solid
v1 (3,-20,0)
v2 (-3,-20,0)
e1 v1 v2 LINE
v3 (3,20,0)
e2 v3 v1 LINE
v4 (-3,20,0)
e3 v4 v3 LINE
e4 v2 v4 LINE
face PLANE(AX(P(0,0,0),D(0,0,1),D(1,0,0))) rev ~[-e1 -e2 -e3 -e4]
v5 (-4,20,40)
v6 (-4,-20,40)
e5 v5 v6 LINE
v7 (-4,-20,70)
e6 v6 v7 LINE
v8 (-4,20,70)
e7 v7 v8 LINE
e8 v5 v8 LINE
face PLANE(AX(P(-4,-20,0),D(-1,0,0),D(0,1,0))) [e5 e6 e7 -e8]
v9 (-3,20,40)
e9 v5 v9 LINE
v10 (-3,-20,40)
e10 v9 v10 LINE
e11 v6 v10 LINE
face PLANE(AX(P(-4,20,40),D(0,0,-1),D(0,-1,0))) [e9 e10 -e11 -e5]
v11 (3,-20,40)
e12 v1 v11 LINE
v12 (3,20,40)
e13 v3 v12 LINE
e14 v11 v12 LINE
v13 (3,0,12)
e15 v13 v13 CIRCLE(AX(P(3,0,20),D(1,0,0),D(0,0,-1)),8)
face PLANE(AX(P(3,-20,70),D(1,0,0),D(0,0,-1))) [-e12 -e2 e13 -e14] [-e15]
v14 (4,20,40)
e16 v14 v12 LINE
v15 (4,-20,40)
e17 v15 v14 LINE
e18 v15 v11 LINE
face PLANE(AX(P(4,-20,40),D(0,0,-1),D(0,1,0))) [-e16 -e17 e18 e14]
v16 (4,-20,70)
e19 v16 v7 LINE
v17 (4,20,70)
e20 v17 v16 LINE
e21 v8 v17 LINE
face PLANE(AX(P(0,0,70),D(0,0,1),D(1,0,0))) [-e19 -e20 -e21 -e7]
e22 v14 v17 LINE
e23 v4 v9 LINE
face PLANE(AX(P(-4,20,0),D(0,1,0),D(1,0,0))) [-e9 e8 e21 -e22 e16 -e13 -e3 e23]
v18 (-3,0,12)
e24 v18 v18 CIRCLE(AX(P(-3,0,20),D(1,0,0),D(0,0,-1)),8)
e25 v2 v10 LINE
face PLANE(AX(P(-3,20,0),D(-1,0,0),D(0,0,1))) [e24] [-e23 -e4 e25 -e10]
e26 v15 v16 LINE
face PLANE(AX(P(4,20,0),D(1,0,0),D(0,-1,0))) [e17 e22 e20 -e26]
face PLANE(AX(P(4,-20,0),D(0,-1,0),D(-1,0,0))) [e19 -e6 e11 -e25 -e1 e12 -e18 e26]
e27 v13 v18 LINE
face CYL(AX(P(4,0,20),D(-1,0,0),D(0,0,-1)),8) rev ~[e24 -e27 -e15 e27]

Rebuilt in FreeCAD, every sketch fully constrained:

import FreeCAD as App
import Part
import Sketcher
Q = App.Units.Quantity


def add_polygon(sketch, points):
    """Adds a closed chain of lines whose ends are joined by coincident constraints."""
    first, n = sketch.GeometryCount, len(points)
    for a, b in zip(points, points[1:] + points[:1]):
        sketch.addGeometry(Part.LineSegment(App.Vector(*a, 0), App.Vector(*b, 0)), False)
    for i in range(n):
        sketch.addConstraint(Sketcher.Constraint("Coincident", first + i, 2, first + (i + 1) % n, 1))

doc = App.newDocument("Part")
params = doc.addObject("Spreadsheet::Sheet", "Params")
for row, (alias, value) in enumerate([
    ("sketch1_width", "8 mm"),
    ("sketch1_height", "40 mm"),
    ("pad1_length", "70 mm"),
    ("sketch2_diameter", "16 mm"),
    ("hole_diameter", "16 mm"),
    ("hole_depth", "15 mm"),
    ("sketch3_width", "40 mm"),
    ("sketch3_diameter", "16 mm"),
    ("pocket1_length", "1 mm"),
    ("sketch4_width", "40 mm"),
    ("sketch4_diameter", "16 mm"),
    ("pocket2_length", "1 mm"),
], start=1):
    params.set(f"A{row}", alias)
    params.set(f"B{row}", "=" + value)
    params.setAlias(f"B{row}", alias)

body = doc.addObject("PartDesign::Body", "Body")

# Sketch on XY plane
sketch1 = doc.addObject("Sketcher::SketchObject", "Sketch")
body.addObject(sketch1)
sketch1.AttachmentSupport = (doc.XY_Plane, [""])
sketch1.MapMode = "FlatFace"
add_polygon(sketch1, [(-4, -20), (4, -20), (4, 20), (-4, 20)])  # lines 0-3
sketch1.addConstraint([
    Sketcher.Constraint("Horizontal", 0),
    Sketcher.Constraint("Vertical", 1),
    Sketcher.Constraint("Horizontal", 2),
    Sketcher.Constraint("Vertical", 3),
    Sketcher.Constraint("Symmetric", 0, 2, 2, 2, -1, 1),
    Sketcher.Constraint("DistanceX", 0, 1, 0, 2, Q("8 mm")),
    Sketcher.Constraint("DistanceY", 1, 1, 1, 2, Q("40 mm")),
])
sketch1.setExpression("Constraints[9]", "Params.sketch1_width")
sketch1.setExpression("Constraints[10]", "Params.sketch1_height")
pad1 = doc.addObject("PartDesign::Pad", "Pad")
body.addObject(pad1)
pad1.Profile = sketch1
pad1.setExpression("Length", "Params.pad1_length")

# Sketch on YZ plane
sketch2 = doc.addObject("Sketcher::SketchObject", "Sketch001")
body.addObject(sketch2)
sketch2.AttachmentSupport = (doc.YZ_Plane, [""])
sketch2.MapMode = "FlatFace"
sketch2.AttachmentOffset = App.Placement(App.Vector(0, 0, 4), App.Rotation())
sketch2.addGeometry(Part.Circle(App.Vector(0, 20, 0), App.Vector(0, 0, 1), 8), False)
sketch2.addConstraint([
    Sketcher.Constraint("PointOnObject", 0, 3, -2),
    Sketcher.Constraint("Diameter", 0, Q("16 mm")),
    Sketcher.Constraint("DistanceY", -1, 1, 0, 3, Q("20 mm")),
])
sketch2.setExpression("Constraints[1]", "Params.sketch2_diameter")
doc.recompute()
hole = doc.addObject("PartDesign::Hole", "Hole")
body.addObject(hole)
hole.Profile = sketch2
hole.ThreadType = "None"
hole.setExpression("Diameter", "Params.hole_diameter")
hole.DepthType = "Dimension"
hole.setExpression("Depth", "Params.hole_depth")
hole.DrillPoint = "Angled"
hole.DrillPointAngle = 118

# Sketch on YZ plane
sketch3 = doc.addObject("Sketcher::SketchObject", "Sketch002")
body.addObject(sketch3)
sketch3.AttachmentSupport = (doc.YZ_Plane, [""])
sketch3.MapMode = "FlatFace"
sketch3.AttachmentOffset = App.Placement(App.Vector(0, 0, 4), App.Rotation())
add_polygon(sketch3, [(-20, 0), (20, 0), (20, 40), (-20, 40)])  # lines 0-3
sketch3.addGeometry(Part.Circle(App.Vector(0, 20, 0), App.Vector(0, 0, 1), 8), False)  # 4
sketch3.addConstraint([
    Sketcher.Constraint("Horizontal", 0),
    Sketcher.Constraint("Vertical", 1),
    Sketcher.Constraint("Horizontal", 2),
    Sketcher.Constraint("Vertical", 3),
    Sketcher.Constraint("Symmetric", 0, 2, 3, 2, -1, 1),
    Sketcher.Constraint("PointOnObject", 4, 3, -2),
    Sketcher.Constraint("Equal", 2, 1),
    Sketcher.Constraint("DistanceX", 0, 1, 0, 2, Q("40 mm")),
    Sketcher.Constraint("Diameter", 4, Q("16 mm")),
    Sketcher.Constraint("DistanceY", -1, 1, 4, 3, Q("20 mm")),
])
sketch3.setExpression("Constraints[11]", "Params.sketch3_width")
sketch3.setExpression("Constraints[12]", "Params.sketch3_diameter")
pocket1 = doc.addObject("PartDesign::Pocket", "Pocket")
body.addObject(pocket1)
pocket1.Profile = sketch3
pocket1.setExpression("Length", "Params.pocket1_length")

# Sketch on YZ plane
sketch4 = doc.addObject("Sketcher::SketchObject", "Sketch003")
body.addObject(sketch4)
sketch4.AttachmentSupport = (doc.YZ_Plane, [""])
sketch4.MapMode = "FlatFace"
sketch4.AttachmentOffset = App.Placement(App.Vector(0, 0, -4), App.Rotation())
add_polygon(sketch4, [(20, 0), (-20, 0), (-20, 40), (20, 40)])  # lines 0-3
sketch4.addGeometry(Part.Circle(App.Vector(0, 20, 0), App.Vector(0, 0, 1), 8), False)  # 4
sketch4.addConstraint([
    Sketcher.Constraint("Horizontal", 0),
    Sketcher.Constraint("Vertical", 1),
    Sketcher.Constraint("Horizontal", 2),
    Sketcher.Constraint("Vertical", 3),
    Sketcher.Constraint("Symmetric", 0, 2, 3, 2, -1, 1),
    Sketcher.Constraint("PointOnObject", 4, 3, -2),
    Sketcher.Constraint("Equal", 2, 1),
    Sketcher.Constraint("DistanceX", 0, 2, 0, 1, Q("40 mm")),
    Sketcher.Constraint("Diameter", 4, Q("16 mm")),
    Sketcher.Constraint("DistanceY", -1, 1, 4, 3, Q("20 mm")),
])
sketch4.setExpression("Constraints[11]", "Params.sketch4_width")
sketch4.setExpression("Constraints[12]", "Params.sketch4_diameter")
pocket2 = doc.addObject("PartDesign::Pocket", "Pocket001")
body.addObject(pocket2)
pocket2.Profile = sketch4
pocket2.setExpression("Length", "Params.pocket2_length")
pocket2.Reversed = True

doc.recompute()
